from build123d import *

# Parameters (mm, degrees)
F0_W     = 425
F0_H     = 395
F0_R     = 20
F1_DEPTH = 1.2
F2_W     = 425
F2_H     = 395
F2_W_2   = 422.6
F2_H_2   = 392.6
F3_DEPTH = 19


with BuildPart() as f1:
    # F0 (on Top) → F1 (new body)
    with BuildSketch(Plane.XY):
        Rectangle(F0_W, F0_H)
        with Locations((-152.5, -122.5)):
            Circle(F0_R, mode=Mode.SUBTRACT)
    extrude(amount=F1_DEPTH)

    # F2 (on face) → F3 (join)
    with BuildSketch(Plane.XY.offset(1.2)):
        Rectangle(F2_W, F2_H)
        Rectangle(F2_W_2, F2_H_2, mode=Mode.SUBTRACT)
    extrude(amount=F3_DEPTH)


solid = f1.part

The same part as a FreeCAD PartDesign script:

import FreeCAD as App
import Part
import Sketcher

V = App.Vector
Q = App.Units.Quantity

doc = App.newDocument("Part")
body = doc.addObject("PartDesign::Body", "Body")

sketch1 = doc.addObject("Sketcher::SketchObject", "Sketch")
body.addObject(sketch1)
sketch1.AttachmentSupport = (doc.XY_Plane, [""])
sketch1.MapMode = "FlatFace"
sketch1.addGeometry([
    Part.LineSegment(V(-212.5, 197.5, 0), V(-212.5, -197.5, 0)),
    Part.LineSegment(V(-212.5, -197.5, 0), V(212.5, -197.5, 0)),
    Part.LineSegment(V(212.5, -197.5, 0), V(212.5, 197.5, 0)),
    Part.LineSegment(V(212.5, 197.5, 0), V(-212.5, 197.5, 0)),
    Part.Circle(V(-152.5, -122.5, 0), V(0, 0, 1), 20),
], False)
sketch1.addConstraint([
    Sketcher.Constraint("Coincident", 0, 2, 1, 1),
    Sketcher.Constraint("Coincident", 1, 2, 2, 1),
    Sketcher.Constraint("Coincident", 2, 2, 3, 1),
    Sketcher.Constraint("Coincident", 3, 2, 0, 1),
    Sketcher.Constraint("Vertical", 0),
    Sketcher.Constraint("Horizontal", 1),
    Sketcher.Constraint("Vertical", 2),
    Sketcher.Constraint("Horizontal", 3),
    Sketcher.Constraint("Symmetric", 0, 2, 2, 2, -1, 1),
    Sketcher.Constraint("Diameter", 4, Q("40 mm")),
    Sketcher.Constraint("DistanceX", 1, 1, 1, 2, Q("425 mm")),
    Sketcher.Constraint("DistanceY", 0, 2, 0, 1, Q("395 mm")),
    Sketcher.Constraint("DistanceX", 0, 2, 4, 3, Q("60 mm")),
    Sketcher.Constraint("DistanceY", 0, 2, 4, 3, Q("75 mm")),
])
pad1 = doc.addObject("PartDesign::Pad", "Pad")
body.addObject(pad1)
pad1.Profile = sketch1
pad1.Length = 1.2

sketch2 = doc.addObject("Sketcher::SketchObject", "Sketch001")
body.addObject(sketch2)
sketch2.AttachmentSupport = (doc.XY_Plane, [""])
sketch2.MapMode = "FlatFace"
sketch2.AttachmentOffset = App.Placement(V(0, 0, 1.2), App.Rotation())
sketch2.addGeometry([
    Part.LineSegment(V(-212.5, 197.5, 0), V(-212.5, -197.5, 0)),
    Part.LineSegment(V(-212.5, -197.5, 0), V(212.5, -197.5, 0)),
    Part.LineSegment(V(212.5, -197.5, 0), V(212.5, 197.5, 0)),
    Part.LineSegment(V(212.5, 197.5, 0), V(-212.5, 197.5, 0)),
    Part.LineSegment(V(211.3, -196.3, 0), V(-211.3, -196.3, 0)),
    Part.LineSegment(V(-211.3, -196.3, 0), V(-211.3, 196.3, 0)),
    Part.LineSegment(V(-211.3, 196.3, 0), V(211.3, 196.3, 0)),
    Part.LineSegment(V(211.3, 196.3, 0), V(211.3, -196.3, 0)),
], False)
sketch2.addConstraint([
    Sketcher.Constraint("Coincident", 0, 2, 1, 1),
    Sketcher.Constraint("Coincident", 1, 2, 2, 1),
    Sketcher.Constraint("Coincident", 2, 2, 3, 1),
    Sketcher.Constraint("Coincident", 3, 2, 0, 1),
    Sketcher.Constraint("Coincident", 4, 2, 5, 1),
    Sketcher.Constraint("Coincident", 5, 2, 6, 1),
    Sketcher.Constraint("Coincident", 6, 2, 7, 1),
    Sketcher.Constraint("Coincident", 7, 2, 4, 1),
    Sketcher.Constraint("Vertical", 0),
    Sketcher.Constraint("Horizontal", 1),
    Sketcher.Constraint("Vertical", 2),
    Sketcher.Constraint("Horizontal", 3),
    Sketcher.Constraint("Horizontal", 4),
    Sketcher.Constraint("Vertical", 5),
    Sketcher.Constraint("Horizontal", 6),
    Sketcher.Constraint("Vertical", 7),
    Sketcher.Constraint("Symmetric", 0, 2, 2, 2, -1, 1),
    Sketcher.Constraint("Symmetric", 4, 2, 6, 2, -1, 1),
    Sketcher.Constraint("DistanceX", 1, 1, 1, 2, Q("425 mm")),
    Sketcher.Constraint("DistanceY", 0, 2, 0, 1, Q("395 mm")),
    Sketcher.Constraint("DistanceX", 4, 2, 4, 1, Q("422.6 mm")),
    Sketcher.Constraint("DistanceY", 5, 1, 5, 2, Q("392.6 mm")),
])
pad2 = doc.addObject("PartDesign::Pad", "Pad001")
body.addObject(pad2)
pad2.Profile = sketch2
pad2.Length = 19

doc.recompute()
